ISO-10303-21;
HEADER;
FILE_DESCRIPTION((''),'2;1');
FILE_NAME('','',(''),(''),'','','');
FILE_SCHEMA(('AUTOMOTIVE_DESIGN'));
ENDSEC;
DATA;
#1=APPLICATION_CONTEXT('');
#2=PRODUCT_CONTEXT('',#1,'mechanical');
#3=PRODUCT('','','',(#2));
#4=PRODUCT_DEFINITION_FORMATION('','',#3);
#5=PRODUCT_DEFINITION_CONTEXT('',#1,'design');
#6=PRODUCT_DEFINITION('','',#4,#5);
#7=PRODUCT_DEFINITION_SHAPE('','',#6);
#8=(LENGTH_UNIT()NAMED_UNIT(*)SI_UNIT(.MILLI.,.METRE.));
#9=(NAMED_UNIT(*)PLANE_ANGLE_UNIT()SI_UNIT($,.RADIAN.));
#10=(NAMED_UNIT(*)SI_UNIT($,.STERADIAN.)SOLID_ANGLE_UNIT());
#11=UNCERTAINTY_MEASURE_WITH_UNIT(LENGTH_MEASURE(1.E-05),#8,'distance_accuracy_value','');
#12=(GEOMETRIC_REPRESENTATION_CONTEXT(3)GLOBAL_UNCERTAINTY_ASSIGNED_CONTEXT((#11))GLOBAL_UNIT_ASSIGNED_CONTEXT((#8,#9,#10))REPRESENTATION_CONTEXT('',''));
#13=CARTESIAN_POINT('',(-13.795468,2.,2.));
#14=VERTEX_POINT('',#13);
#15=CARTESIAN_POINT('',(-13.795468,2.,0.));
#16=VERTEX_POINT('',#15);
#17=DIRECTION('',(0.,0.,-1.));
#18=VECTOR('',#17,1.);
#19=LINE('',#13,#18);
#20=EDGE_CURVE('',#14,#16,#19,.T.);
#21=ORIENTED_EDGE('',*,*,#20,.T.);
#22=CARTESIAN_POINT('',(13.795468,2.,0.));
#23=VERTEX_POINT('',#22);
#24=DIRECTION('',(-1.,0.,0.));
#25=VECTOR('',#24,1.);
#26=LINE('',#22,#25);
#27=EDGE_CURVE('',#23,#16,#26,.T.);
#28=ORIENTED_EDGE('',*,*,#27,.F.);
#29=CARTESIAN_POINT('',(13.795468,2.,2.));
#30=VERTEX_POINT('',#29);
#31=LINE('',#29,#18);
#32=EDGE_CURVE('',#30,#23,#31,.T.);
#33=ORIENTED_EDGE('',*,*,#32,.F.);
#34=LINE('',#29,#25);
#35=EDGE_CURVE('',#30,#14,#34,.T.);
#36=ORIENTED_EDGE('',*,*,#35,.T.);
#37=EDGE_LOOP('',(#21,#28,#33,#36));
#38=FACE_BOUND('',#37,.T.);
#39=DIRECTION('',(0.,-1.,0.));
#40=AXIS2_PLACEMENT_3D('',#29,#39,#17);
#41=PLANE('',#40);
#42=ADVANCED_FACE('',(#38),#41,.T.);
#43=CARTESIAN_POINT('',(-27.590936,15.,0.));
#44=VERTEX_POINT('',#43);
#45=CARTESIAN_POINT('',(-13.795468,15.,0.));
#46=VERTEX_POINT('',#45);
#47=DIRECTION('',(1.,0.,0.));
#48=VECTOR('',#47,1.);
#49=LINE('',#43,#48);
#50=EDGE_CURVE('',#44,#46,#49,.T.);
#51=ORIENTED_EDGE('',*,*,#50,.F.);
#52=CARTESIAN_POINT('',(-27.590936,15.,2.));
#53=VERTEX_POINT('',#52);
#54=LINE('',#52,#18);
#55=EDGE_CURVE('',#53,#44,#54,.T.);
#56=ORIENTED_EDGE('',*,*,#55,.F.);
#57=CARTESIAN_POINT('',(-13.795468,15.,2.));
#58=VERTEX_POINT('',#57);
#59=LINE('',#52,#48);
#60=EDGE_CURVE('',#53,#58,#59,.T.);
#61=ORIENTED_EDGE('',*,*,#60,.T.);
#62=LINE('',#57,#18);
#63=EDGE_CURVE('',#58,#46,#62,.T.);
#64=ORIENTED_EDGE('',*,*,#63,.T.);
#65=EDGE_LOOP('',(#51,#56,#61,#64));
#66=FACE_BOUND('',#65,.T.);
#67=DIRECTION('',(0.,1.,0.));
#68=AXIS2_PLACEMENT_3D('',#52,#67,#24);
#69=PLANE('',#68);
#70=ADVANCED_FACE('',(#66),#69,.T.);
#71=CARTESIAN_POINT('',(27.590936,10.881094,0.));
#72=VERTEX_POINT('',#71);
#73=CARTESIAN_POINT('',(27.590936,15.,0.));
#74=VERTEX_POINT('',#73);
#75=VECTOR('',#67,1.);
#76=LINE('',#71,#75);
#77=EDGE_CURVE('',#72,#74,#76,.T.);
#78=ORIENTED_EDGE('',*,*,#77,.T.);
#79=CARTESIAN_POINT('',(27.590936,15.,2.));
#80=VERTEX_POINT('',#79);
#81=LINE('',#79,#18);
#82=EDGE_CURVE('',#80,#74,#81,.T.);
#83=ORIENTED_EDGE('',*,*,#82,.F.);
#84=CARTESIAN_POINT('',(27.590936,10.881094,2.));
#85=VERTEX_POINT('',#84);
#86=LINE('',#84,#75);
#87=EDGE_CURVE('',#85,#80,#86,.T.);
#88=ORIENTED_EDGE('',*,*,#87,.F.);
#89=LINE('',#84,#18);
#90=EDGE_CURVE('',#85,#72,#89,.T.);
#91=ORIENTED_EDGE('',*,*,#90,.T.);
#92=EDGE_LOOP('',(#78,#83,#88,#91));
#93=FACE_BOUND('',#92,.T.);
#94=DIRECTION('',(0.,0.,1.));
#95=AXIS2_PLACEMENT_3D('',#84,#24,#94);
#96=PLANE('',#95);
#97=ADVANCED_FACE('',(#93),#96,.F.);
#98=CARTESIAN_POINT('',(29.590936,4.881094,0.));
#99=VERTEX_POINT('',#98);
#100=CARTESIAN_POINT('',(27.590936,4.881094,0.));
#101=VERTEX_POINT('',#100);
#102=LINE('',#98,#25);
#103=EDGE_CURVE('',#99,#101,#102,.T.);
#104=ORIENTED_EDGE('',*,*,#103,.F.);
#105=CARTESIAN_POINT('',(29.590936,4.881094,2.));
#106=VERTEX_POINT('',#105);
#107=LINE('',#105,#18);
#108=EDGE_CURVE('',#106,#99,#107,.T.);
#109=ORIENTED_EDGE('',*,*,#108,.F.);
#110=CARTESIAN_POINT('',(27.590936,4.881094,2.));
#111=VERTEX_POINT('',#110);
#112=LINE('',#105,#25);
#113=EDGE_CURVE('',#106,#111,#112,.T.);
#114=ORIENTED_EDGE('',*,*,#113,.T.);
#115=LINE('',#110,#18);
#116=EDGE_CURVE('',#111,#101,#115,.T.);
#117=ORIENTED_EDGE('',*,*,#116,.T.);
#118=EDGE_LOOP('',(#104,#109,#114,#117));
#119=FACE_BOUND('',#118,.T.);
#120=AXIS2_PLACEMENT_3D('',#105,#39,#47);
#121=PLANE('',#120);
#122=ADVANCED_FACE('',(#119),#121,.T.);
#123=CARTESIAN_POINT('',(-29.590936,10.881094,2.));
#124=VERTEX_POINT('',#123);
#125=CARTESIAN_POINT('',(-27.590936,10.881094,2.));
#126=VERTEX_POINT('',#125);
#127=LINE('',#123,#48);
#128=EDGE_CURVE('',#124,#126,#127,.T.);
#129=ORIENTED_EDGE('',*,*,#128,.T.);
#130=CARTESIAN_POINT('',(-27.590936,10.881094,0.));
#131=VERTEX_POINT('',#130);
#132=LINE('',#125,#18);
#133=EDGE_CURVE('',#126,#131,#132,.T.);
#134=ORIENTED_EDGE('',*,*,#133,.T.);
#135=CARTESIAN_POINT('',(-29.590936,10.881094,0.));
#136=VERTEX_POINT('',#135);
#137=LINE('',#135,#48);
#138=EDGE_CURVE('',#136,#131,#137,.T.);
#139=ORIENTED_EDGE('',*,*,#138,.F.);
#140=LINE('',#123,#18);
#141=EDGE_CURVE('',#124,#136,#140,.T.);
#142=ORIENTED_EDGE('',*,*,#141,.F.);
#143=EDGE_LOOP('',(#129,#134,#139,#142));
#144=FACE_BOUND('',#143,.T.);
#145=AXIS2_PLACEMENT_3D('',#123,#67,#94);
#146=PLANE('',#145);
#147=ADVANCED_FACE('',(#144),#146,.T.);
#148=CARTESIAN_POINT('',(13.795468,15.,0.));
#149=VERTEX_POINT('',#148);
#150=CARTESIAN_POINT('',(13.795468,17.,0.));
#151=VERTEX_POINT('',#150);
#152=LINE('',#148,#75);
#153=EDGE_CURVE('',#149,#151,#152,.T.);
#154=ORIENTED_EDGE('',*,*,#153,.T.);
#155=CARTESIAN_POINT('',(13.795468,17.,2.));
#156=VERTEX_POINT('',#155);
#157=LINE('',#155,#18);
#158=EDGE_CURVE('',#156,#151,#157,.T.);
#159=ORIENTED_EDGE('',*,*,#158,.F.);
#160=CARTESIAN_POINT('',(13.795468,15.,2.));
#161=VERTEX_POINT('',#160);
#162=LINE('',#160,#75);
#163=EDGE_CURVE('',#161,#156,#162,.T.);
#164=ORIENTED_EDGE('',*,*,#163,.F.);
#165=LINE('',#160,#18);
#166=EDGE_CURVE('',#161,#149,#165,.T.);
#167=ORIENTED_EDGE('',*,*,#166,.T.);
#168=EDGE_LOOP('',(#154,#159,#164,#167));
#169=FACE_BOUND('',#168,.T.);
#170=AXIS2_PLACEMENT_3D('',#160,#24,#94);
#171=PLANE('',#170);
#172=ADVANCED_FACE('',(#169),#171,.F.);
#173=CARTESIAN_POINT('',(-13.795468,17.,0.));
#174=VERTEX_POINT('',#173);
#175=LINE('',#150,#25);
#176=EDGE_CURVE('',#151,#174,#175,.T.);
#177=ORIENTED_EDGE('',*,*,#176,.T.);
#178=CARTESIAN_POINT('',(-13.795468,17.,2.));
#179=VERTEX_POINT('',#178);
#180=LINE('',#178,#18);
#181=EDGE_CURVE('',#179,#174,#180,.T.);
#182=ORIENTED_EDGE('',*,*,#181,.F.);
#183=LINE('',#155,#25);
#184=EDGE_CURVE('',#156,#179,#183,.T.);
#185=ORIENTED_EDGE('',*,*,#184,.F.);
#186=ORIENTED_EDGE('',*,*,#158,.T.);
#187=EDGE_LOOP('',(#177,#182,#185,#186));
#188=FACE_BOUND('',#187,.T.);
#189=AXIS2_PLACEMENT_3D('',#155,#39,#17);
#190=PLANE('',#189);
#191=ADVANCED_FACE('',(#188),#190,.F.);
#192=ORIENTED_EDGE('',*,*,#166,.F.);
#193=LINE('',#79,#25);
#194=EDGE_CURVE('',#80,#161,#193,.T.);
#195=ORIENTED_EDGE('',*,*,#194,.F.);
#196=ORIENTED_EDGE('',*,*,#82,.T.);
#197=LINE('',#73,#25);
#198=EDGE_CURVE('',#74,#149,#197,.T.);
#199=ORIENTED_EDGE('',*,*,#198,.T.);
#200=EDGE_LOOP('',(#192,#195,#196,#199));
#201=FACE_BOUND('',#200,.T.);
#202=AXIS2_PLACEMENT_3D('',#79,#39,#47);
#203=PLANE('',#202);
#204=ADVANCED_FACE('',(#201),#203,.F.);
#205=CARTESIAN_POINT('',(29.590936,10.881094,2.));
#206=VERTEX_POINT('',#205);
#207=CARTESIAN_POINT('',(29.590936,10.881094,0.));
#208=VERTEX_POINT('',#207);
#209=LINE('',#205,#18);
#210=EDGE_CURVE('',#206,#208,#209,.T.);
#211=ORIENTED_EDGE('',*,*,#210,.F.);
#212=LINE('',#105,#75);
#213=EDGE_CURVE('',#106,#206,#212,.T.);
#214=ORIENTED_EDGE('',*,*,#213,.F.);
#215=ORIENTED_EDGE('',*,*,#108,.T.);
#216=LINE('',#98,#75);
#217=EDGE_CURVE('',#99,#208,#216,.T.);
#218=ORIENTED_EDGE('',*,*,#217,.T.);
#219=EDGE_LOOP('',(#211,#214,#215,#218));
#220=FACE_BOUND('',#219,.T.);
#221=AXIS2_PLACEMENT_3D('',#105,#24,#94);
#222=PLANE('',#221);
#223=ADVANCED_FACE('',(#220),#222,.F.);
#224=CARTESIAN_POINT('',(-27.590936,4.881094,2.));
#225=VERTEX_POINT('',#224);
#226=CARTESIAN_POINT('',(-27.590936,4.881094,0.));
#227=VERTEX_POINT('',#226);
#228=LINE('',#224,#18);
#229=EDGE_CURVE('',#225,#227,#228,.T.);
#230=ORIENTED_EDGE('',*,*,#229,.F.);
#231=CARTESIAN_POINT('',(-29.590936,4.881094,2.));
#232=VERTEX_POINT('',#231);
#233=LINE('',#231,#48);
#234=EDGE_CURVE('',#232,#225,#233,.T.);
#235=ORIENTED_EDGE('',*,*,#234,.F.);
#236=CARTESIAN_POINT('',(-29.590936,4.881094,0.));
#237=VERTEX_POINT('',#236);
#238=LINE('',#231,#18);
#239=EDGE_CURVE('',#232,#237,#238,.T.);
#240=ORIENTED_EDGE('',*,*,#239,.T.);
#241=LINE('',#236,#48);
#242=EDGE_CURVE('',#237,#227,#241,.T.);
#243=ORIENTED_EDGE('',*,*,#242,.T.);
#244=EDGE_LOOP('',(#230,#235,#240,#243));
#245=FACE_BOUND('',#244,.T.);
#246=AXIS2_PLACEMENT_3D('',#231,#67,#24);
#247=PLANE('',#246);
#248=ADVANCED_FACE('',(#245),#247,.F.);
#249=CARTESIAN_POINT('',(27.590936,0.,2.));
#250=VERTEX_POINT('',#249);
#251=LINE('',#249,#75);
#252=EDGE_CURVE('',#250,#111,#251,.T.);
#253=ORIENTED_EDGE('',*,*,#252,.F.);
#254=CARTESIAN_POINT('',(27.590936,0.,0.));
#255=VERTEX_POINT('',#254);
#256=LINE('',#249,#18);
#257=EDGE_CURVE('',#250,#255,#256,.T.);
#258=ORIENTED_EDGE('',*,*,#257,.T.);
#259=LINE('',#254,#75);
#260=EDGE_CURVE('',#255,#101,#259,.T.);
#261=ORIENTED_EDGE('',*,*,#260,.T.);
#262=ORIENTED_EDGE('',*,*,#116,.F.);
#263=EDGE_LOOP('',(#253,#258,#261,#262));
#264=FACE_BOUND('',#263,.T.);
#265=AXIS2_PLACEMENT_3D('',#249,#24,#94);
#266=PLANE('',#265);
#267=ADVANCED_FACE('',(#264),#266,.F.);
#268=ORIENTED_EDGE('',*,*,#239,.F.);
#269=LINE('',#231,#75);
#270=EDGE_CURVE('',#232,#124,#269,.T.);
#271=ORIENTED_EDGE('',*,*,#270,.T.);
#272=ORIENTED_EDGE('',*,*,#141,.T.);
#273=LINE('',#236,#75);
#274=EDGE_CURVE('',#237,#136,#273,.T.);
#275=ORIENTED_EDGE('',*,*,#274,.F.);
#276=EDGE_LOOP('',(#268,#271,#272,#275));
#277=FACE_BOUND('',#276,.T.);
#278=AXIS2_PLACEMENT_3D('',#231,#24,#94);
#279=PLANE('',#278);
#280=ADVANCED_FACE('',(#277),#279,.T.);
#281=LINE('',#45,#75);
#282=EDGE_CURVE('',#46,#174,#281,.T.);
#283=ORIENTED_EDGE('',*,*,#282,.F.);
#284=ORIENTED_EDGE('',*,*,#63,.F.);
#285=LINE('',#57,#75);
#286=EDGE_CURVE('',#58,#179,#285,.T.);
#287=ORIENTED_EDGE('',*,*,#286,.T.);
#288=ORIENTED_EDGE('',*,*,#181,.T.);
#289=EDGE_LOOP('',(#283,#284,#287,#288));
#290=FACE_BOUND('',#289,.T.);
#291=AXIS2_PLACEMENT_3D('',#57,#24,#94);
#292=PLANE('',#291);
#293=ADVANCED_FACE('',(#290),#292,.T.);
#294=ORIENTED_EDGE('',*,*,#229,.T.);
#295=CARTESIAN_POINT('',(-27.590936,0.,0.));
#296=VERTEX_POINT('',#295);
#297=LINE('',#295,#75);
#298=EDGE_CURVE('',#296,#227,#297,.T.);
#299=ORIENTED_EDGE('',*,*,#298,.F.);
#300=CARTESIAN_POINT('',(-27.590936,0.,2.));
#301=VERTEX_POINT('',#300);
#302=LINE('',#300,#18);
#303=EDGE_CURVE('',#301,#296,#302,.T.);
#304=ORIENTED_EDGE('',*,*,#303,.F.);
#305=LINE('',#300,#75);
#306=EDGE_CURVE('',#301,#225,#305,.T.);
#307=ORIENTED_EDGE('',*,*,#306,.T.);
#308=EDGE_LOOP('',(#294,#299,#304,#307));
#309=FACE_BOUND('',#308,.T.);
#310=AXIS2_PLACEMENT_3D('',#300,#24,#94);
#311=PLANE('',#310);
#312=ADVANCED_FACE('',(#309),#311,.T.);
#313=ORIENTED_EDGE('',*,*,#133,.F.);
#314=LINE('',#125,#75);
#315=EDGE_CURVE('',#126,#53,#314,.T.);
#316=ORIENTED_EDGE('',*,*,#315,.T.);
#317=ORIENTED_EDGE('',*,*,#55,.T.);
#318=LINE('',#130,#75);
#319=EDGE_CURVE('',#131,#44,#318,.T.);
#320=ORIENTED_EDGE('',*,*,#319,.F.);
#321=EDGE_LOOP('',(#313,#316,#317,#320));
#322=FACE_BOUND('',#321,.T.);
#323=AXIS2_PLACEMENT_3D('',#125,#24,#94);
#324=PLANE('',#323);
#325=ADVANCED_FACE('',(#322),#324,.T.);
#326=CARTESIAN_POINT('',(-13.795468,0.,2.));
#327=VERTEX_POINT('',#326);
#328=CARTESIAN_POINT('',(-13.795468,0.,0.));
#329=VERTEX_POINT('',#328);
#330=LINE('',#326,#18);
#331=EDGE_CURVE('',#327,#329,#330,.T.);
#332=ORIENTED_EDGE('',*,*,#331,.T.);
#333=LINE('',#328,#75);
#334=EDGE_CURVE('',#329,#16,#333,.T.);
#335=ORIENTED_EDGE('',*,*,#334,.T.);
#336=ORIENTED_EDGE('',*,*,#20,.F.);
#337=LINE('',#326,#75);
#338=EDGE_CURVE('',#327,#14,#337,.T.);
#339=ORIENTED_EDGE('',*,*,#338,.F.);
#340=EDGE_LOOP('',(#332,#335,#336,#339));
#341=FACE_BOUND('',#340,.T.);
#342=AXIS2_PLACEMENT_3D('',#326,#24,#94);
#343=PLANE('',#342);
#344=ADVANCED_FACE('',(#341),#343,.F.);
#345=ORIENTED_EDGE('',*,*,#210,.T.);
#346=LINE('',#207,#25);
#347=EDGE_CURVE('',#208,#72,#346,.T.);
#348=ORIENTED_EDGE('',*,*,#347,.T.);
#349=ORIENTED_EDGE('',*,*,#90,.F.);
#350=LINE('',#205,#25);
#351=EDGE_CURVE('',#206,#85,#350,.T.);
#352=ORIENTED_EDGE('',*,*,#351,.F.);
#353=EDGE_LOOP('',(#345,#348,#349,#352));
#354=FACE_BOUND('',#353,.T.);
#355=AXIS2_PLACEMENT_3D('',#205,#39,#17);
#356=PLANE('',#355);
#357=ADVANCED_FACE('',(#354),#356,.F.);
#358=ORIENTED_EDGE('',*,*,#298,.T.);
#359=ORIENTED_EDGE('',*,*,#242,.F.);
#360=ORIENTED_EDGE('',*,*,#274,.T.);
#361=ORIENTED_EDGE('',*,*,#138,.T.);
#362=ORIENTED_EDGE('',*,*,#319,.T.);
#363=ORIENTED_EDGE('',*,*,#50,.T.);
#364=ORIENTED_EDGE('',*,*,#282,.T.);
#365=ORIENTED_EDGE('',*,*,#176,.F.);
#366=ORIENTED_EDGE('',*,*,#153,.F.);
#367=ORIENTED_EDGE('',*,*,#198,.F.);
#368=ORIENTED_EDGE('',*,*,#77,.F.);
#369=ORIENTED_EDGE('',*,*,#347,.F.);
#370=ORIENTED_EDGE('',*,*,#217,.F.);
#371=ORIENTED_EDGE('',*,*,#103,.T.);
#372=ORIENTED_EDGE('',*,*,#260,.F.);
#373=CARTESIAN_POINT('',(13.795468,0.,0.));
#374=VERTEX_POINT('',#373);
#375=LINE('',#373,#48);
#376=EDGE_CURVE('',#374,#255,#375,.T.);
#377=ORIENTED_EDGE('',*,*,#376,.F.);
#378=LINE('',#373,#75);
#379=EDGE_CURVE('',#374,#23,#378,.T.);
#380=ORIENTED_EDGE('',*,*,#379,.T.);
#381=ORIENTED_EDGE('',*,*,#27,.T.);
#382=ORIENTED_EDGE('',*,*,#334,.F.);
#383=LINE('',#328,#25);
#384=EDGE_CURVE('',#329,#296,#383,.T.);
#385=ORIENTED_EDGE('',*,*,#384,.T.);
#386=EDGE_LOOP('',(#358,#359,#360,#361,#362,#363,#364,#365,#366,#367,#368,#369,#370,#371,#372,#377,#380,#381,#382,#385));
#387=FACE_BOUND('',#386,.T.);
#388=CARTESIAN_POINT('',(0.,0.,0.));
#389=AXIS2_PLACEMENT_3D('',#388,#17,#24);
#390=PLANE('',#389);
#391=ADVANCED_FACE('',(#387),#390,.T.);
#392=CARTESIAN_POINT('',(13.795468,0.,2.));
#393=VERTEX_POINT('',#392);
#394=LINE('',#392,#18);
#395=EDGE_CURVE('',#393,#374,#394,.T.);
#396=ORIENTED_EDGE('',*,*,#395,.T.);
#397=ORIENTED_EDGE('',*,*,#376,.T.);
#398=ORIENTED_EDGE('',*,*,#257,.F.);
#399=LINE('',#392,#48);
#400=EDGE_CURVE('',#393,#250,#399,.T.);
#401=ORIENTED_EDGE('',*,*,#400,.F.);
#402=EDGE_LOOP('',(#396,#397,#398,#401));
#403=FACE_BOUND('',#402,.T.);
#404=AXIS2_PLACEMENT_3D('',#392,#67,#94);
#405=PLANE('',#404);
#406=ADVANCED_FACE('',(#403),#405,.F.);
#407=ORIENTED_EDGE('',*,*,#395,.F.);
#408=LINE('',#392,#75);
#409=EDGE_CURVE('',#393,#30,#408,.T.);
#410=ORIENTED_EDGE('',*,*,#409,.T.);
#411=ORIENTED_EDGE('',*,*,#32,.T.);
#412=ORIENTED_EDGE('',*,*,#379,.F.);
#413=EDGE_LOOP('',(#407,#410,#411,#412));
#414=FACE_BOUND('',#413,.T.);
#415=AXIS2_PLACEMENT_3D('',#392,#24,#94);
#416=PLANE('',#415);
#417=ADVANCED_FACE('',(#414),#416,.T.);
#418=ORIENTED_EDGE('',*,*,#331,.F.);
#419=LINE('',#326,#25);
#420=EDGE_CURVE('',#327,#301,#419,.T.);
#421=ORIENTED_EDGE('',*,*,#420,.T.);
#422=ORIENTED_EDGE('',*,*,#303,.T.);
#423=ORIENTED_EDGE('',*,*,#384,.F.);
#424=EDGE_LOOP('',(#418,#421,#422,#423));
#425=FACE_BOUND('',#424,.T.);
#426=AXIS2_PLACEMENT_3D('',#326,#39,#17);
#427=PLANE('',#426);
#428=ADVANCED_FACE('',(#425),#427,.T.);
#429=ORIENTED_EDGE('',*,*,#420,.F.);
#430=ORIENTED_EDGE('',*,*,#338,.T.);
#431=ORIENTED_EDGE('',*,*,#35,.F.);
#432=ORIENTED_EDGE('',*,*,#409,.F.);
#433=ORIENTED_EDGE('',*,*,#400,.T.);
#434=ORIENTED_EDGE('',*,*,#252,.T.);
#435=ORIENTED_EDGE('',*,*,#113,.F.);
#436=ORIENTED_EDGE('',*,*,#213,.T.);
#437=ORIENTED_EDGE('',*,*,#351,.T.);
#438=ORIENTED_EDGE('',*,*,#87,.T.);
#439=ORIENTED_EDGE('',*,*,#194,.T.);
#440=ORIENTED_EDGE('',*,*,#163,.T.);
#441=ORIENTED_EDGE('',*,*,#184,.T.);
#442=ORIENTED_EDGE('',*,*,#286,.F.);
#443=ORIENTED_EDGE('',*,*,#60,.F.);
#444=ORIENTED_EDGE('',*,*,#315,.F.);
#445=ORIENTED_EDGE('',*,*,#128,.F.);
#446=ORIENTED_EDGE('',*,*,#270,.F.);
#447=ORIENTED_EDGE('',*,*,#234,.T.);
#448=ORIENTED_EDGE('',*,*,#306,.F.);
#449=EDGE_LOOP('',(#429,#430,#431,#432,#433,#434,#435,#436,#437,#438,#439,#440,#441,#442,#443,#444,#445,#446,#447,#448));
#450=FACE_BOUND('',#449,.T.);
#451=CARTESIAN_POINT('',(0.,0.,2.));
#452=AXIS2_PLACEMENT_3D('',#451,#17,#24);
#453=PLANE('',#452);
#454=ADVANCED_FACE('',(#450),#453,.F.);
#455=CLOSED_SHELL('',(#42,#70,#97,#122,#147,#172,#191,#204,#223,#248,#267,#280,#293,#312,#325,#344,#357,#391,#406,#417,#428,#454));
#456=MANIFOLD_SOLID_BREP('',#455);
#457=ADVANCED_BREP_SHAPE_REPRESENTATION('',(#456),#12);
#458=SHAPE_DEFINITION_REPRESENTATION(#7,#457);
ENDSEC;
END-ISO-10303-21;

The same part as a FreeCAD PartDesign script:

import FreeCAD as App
import Part
import Sketcher
from FreeCAD import Vector

doc = App.newDocument("Part")
body = doc.addObject("PartDesign::Body", "Body")

# Sketch on XY plane
sketch1 = body.newObject("Sketcher::SketchObject", "Sketch")
sketch1.AttachmentSupport = (doc.getObject("XY_Plane"), [""])
sketch1.MapMode = "FlatFace"
sketch1.addGeometry(Part.LineSegment(Vector(13.8, 0, 0), Vector(27.6, 0, 0)), False)
sketch1.addGeometry(Part.LineSegment(Vector(27.6, 0, 0), Vector(27.6, 4.9, 0)), False)
sketch1.addGeometry(Part.LineSegment(Vector(27.6, 4.9, 0), Vector(29.6, 4.9, 0)), False)
sketch1.addGeometry(Part.LineSegment(Vector(29.6, 4.9, 0), Vector(29.6, 10.9, 0)), False)
sketch1.addGeometry(Part.LineSegment(Vector(29.6, 10.9, 0), Vector(27.6, 10.9, 0)), False)
sketch1.addGeometry(Part.LineSegment(Vector(27.6, 10.9, 0), Vector(27.6, 15, 0)), False)
sketch1.addGeometry(Part.LineSegment(Vector(27.6, 15, 0), Vector(13.8, 15, 0)), False)
sketch1.addGeometry(Part.LineSegment(Vector(13.8, 15, 0), Vector(13.8, 17, 0)), False)
sketch1.addGeometry(Part.LineSegment(Vector(13.8, 17, 0), Vector(-13.8, 17, 0)), False)
sketch1.addGeometry(Part.LineSegment(Vector(-13.8, 17, 0), Vector(-13.8, 15, 0)), False)
sketch1.addGeometry(Part.LineSegment(Vector(-13.8, 15, 0), Vector(-27.6, 15, 0)), False)
sketch1.addGeometry(Part.LineSegment(Vector(-27.6, 15, 0), Vector(-27.6, 10.9, 0)), False)
sketch1.addGeometry(Part.LineSegment(Vector(-27.6, 10.9, 0), Vector(-29.6, 10.9, 0)), False)
sketch1.addGeometry(Part.LineSegment(Vector(-29.6, 10.9, 0), Vector(-29.6, 4.9, 0)), False)
sketch1.addGeometry(Part.LineSegment(Vector(-29.6, 4.9, 0), Vector(-27.6, 4.9, 0)), False)
sketch1.addGeometry(Part.LineSegment(Vector(-27.6, 4.9, 0), Vector(-27.6, 0, 0)), False)
sketch1.addGeometry(Part.LineSegment(Vector(-27.6, 0, 0), Vector(-13.8, 0, 0)), False)
sketch1.addGeometry(Part.LineSegment(Vector(-13.8, 0, 0), Vector(-13.8, 2, 0)), False)
sketch1.addGeometry(Part.LineSegment(Vector(-13.8, 2, 0), Vector(13.8, 2, 0)), False)
sketch1.addGeometry(Part.LineSegment(Vector(13.8, 2, 0), Vector(13.8, 0, 0)), False)
sketch1.addConstraint(Sketcher.Constraint("Coincident", 0, 2, 1, 1))
sketch1.addConstraint(Sketcher.Constraint("Coincident", 1, 2, 2, 1))
sketch1.addConstraint(Sketcher.Constraint("Coincident", 2, 2, 3, 1))
sketch1.addConstraint(Sketcher.Constraint("Coincident", 3, 2, 4, 1))
sketch1.addConstraint(Sketcher.Constraint("Coincident", 4, 2, 5, 1))
sketch1.addConstraint(Sketcher.Constraint("Coincident", 5, 2, 6, 1))
sketch1.addConstraint(Sketcher.Constraint("Coincident", 6, 2, 7, 1))
sketch1.addConstraint(Sketcher.Constraint("Coincident", 7, 2, 8, 1))
sketch1.addConstraint(Sketcher.Constraint("Coincident", 8, 2, 9, 1))
sketch1.addConstraint(Sketcher.Constraint("Coincident", 9, 2, 10, 1))
sketch1.addConstraint(Sketcher.Constraint("Coincident", 10, 2, 11, 1))
sketch1.addConstraint(Sketcher.Constraint("Coincident", 11, 2, 12, 1))
sketch1.addConstraint(Sketcher.Constraint("Coincident", 12, 2, 13, 1))
sketch1.addConstraint(Sketcher.Constraint("Coincident", 13, 2, 14, 1))
sketch1.addConstraint(Sketcher.Constraint("Coincident", 14, 2, 15, 1))
sketch1.addConstraint(Sketcher.Constraint("Coincident", 15, 2, 16, 1))
sketch1.addConstraint(Sketcher.Constraint("Coincident", 16, 2, 17, 1))
sketch1.addConstraint(Sketcher.Constraint("Coincident", 17, 2, 18, 1))
sketch1.addConstraint(Sketcher.Constraint("Coincident", 18, 2, 19, 1))
sketch1.addConstraint(Sketcher.Constraint("Coincident", 19, 2, 0, 1))
sketch1.addConstraint(Sketcher.Constraint("Horizontal", 0))
sketch1.addConstraint(Sketcher.Constraint("Vertical", 1))
sketch1.addConstraint(Sketcher.Constraint("Horizontal", 2))
sketch1.addConstraint(Sketcher.Constraint("Vertical", 3))
sketch1.addConstraint(Sketcher.Constraint("Horizontal", 4))
sketch1.addConstraint(Sketcher.Constraint("Vertical", 5))
sketch1.addConstraint(Sketcher.Constraint("Horizontal", 6))
sketch1.addConstraint(Sketcher.Constraint("Vertical", 7))
sketch1.addConstraint(Sketcher.Constraint("Horizontal", 8))
sketch1.addConstraint(Sketcher.Constraint("Vertical", 9))
sketch1.addConstraint(Sketcher.Constraint("Horizontal", 10))
sketch1.addConstraint(Sketcher.Constraint("Vertical", 11))
sketch1.addConstraint(Sketcher.Constraint("Horizontal", 12))
sketch1.addConstraint(Sketcher.Constraint("Vertical", 13))
sketch1.addConstraint(Sketcher.Constraint("Horizontal", 14))
sketch1.addConstraint(Sketcher.Constraint("Vertical", 15))
sketch1.addConstraint(Sketcher.Constraint("Horizontal", 16))
sketch1.addConstraint(Sketcher.Constraint("Vertical", 17))
sketch1.addConstraint(Sketcher.Constraint("Horizontal", 18))
sketch1.addConstraint(Sketcher.Constraint("Vertical", 19))
sketch1.addConstraint(Sketcher.Constraint("Symmetric", 0, 2, 15, 2, -1, 1))
sketch1.addConstraint(Sketcher.Constraint("Symmetric", 6, 2, 9, 2, -2))
sketch1.addConstraint(Sketcher.Constraint("Symmetric", 4, 2, 11, 2, -2))
sketch1.addConstraint(Sketcher.Constraint("Symmetric", 2, 2, 13, 2, -2))
sketch1.addConstraint(Sketcher.Constraint("Symmetric", 16, 2, 19, 2, -2))
sketch1.addConstraint(Sketcher.Constraint("Vertical", 1, 2, 4, 2))
sketch1.addConstraint(Sketcher.Constraint("Vertical", 9, 2, 16, 2))
sketch1.addConstraint(Sketcher.Constraint("Equal", 14, 7))
sketch1.addConstraint(Sketcher.Constraint("Equal", 9, 17))
sketch1.addConstraint(Sketcher.Constraint("DistanceX", 2, 1, 2, 2, 2.0))
sketch1.addConstraint(Sketcher.Constraint("DistanceY", 3, 1, 3, 2, 6.0))
sketch1.addConstraint(Sketcher.Constraint("DistanceY", -1, 1, 5, 2, 15.0))
sketch1.addConstraint(Sketcher.Constraint("DistanceX", 0, 1, 0, 2, 13.795468))
sketch1.addConstraint(Sketcher.Constraint("DistanceX", 8, 2, 8, 1, 27.590936))
sketch1.addConstraint(Sketcher.Constraint("DistanceY", 1, 1, 1, 2, 4.881094))
pad1 = body.newObject("PartDesign::Pad", "Pad")
pad1.Profile = sketch1
pad1.Length = 2

doc.recompute()
